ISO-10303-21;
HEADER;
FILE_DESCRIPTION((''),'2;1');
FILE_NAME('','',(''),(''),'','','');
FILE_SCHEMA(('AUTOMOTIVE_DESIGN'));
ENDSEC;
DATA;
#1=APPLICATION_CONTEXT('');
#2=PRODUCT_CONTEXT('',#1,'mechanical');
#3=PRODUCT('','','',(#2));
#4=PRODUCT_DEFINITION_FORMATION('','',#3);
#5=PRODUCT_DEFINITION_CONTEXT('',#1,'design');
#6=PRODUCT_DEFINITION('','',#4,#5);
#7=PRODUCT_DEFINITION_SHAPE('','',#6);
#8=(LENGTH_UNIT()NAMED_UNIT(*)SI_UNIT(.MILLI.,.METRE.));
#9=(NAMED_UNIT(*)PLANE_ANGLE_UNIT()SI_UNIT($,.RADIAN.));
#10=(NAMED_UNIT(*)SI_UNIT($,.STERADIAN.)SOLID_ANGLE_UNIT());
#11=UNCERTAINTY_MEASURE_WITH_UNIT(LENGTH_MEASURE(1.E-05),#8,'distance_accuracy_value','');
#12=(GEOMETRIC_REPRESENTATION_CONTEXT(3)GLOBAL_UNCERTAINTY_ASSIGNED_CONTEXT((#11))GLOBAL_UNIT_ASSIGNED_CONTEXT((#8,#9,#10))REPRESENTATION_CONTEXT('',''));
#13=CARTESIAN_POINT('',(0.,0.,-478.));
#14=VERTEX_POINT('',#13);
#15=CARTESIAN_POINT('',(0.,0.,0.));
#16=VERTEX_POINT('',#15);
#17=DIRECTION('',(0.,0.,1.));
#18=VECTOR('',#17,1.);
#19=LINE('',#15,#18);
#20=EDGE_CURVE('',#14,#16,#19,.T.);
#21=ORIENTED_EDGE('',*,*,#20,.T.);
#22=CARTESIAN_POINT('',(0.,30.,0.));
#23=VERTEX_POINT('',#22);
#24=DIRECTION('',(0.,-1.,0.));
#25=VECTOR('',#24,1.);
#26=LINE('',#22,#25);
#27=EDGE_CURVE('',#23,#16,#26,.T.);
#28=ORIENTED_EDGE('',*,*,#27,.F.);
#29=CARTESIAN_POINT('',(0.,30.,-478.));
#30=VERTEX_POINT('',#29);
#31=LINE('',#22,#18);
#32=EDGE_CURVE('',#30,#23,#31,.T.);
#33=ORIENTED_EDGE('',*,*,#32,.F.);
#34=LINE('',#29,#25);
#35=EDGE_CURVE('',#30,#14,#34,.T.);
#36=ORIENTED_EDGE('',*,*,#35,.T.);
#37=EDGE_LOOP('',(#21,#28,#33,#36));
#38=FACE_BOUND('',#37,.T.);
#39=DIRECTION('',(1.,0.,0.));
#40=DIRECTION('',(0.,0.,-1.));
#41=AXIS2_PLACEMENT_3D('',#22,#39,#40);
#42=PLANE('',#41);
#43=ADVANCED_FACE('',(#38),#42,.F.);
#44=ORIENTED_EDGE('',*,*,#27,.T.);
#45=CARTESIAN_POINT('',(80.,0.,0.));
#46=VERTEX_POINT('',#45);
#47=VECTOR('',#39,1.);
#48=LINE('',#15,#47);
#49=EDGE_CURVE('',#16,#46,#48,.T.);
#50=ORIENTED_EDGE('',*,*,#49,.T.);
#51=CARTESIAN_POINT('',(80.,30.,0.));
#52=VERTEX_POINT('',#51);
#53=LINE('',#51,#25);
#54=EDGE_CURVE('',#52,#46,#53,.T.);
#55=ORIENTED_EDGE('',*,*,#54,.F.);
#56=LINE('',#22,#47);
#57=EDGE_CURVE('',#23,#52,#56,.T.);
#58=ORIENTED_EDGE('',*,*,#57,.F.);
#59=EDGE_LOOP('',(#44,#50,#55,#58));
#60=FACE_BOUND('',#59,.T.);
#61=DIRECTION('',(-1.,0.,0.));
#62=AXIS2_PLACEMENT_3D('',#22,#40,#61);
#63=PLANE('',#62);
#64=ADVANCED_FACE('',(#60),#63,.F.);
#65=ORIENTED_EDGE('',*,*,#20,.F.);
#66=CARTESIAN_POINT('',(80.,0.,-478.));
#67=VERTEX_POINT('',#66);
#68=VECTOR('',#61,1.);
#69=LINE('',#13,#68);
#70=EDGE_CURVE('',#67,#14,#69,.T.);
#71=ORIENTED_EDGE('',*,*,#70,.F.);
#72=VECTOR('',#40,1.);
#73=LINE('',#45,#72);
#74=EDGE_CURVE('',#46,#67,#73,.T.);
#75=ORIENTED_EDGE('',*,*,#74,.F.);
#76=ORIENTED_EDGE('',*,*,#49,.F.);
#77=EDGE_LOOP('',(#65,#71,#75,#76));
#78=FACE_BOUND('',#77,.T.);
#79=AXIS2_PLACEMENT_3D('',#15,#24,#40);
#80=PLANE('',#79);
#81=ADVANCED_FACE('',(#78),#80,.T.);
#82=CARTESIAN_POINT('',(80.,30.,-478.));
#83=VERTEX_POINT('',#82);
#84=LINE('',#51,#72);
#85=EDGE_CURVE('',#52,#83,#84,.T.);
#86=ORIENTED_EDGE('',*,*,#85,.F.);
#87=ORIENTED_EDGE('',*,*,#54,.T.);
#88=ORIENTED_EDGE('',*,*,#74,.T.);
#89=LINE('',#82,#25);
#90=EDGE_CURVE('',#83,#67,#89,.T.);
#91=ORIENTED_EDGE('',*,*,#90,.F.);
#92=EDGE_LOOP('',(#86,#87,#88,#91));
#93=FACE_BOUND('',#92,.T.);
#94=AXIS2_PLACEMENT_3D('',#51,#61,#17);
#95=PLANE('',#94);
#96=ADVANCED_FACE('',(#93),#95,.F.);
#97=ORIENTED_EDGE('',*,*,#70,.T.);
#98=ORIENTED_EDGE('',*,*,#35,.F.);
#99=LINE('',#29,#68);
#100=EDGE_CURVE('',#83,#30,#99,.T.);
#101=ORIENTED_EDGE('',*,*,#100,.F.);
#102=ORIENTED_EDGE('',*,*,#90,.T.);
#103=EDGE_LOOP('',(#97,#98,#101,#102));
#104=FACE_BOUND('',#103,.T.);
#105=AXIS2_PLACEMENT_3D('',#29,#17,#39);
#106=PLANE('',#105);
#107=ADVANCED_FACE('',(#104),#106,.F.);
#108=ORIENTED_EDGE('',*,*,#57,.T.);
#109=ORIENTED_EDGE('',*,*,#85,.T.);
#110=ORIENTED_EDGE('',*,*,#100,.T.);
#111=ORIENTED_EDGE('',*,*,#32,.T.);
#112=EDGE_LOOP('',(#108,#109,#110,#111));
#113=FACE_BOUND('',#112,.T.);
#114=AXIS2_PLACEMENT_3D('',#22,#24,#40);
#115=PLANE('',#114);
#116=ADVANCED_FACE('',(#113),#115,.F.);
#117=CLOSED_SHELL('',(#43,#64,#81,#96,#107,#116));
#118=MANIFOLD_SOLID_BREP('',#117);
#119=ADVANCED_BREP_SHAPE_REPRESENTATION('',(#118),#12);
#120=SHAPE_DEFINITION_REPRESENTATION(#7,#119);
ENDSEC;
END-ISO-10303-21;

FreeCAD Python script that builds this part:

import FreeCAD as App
import Part
import Sketcher
from FreeCAD import Vector


def add_polygon(sketch, points):
    """Adds a closed chain of lines whose ends are joined by coincident constraints."""
    first, n = sketch.GeometryCount, len(points)
    for a, b in zip(points, points[1:] + points[:1]):
        sketch.addGeometry(Part.LineSegment(App.Vector(*a, 0), App.Vector(*b, 0)), False)
    for i in range(n):
        sketch.addConstraint(Sketcher.Constraint("Coincident", first + i, 2, first + (i + 1) % n, 1))

doc = App.newDocument("Part")
params = doc.addObject("Spreadsheet::Sheet", "Params")
for row, (alias, value) in enumerate([
    ("sketch1_width", "80 mm"),
    ("sketch1_height", "478 mm"),
    ("pad1_length", "30 mm"),
], start=1):
    params.set(f"A{row}", alias)
    params.set(f"B{row}", "=" + value)
    params.setAlias(f"B{row}", alias)

body = doc.addObject("PartDesign::Body", "Body")

# Sketch on XZ plane
sketch1 = body.newObject("Sketcher::SketchObject", "Sketch")
sketch1.AttachmentSupport = (doc.getObject("XZ_Plane"), [""])
sketch1.MapMode = "FlatFace"
add_polygon(sketch1, [(0, -478), (0, 0), (80, 0), (80, -478)])  # lines 0-3
sketch1.addConstraint([
    Sketcher.Constraint("Vertical", 0),
    Sketcher.Constraint("Horizontal", 1),
    Sketcher.Constraint("Vertical", 2),
    Sketcher.Constraint("Horizontal", 3),
    Sketcher.Constraint("Coincident", 0, 2, -1, 1),
    Sketcher.Constraint("DistanceX", 1, 1, 1, 2, 80.0),
    Sketcher.Constraint("DistanceY", 0, 1, 0, 2, 478.0),
])
sketch1.setExpression("Constraints[9]", "Params.sketch1_width")
sketch1.setExpression("Constraints[10]", "Params.sketch1_height")
pad1 = body.newObject("PartDesign::Pad", "Pad")
pad1.Profile = sketch1
pad1.setExpression("Length", "Params.pad1_length")
pad1.Reversed = True

doc.recompute()
